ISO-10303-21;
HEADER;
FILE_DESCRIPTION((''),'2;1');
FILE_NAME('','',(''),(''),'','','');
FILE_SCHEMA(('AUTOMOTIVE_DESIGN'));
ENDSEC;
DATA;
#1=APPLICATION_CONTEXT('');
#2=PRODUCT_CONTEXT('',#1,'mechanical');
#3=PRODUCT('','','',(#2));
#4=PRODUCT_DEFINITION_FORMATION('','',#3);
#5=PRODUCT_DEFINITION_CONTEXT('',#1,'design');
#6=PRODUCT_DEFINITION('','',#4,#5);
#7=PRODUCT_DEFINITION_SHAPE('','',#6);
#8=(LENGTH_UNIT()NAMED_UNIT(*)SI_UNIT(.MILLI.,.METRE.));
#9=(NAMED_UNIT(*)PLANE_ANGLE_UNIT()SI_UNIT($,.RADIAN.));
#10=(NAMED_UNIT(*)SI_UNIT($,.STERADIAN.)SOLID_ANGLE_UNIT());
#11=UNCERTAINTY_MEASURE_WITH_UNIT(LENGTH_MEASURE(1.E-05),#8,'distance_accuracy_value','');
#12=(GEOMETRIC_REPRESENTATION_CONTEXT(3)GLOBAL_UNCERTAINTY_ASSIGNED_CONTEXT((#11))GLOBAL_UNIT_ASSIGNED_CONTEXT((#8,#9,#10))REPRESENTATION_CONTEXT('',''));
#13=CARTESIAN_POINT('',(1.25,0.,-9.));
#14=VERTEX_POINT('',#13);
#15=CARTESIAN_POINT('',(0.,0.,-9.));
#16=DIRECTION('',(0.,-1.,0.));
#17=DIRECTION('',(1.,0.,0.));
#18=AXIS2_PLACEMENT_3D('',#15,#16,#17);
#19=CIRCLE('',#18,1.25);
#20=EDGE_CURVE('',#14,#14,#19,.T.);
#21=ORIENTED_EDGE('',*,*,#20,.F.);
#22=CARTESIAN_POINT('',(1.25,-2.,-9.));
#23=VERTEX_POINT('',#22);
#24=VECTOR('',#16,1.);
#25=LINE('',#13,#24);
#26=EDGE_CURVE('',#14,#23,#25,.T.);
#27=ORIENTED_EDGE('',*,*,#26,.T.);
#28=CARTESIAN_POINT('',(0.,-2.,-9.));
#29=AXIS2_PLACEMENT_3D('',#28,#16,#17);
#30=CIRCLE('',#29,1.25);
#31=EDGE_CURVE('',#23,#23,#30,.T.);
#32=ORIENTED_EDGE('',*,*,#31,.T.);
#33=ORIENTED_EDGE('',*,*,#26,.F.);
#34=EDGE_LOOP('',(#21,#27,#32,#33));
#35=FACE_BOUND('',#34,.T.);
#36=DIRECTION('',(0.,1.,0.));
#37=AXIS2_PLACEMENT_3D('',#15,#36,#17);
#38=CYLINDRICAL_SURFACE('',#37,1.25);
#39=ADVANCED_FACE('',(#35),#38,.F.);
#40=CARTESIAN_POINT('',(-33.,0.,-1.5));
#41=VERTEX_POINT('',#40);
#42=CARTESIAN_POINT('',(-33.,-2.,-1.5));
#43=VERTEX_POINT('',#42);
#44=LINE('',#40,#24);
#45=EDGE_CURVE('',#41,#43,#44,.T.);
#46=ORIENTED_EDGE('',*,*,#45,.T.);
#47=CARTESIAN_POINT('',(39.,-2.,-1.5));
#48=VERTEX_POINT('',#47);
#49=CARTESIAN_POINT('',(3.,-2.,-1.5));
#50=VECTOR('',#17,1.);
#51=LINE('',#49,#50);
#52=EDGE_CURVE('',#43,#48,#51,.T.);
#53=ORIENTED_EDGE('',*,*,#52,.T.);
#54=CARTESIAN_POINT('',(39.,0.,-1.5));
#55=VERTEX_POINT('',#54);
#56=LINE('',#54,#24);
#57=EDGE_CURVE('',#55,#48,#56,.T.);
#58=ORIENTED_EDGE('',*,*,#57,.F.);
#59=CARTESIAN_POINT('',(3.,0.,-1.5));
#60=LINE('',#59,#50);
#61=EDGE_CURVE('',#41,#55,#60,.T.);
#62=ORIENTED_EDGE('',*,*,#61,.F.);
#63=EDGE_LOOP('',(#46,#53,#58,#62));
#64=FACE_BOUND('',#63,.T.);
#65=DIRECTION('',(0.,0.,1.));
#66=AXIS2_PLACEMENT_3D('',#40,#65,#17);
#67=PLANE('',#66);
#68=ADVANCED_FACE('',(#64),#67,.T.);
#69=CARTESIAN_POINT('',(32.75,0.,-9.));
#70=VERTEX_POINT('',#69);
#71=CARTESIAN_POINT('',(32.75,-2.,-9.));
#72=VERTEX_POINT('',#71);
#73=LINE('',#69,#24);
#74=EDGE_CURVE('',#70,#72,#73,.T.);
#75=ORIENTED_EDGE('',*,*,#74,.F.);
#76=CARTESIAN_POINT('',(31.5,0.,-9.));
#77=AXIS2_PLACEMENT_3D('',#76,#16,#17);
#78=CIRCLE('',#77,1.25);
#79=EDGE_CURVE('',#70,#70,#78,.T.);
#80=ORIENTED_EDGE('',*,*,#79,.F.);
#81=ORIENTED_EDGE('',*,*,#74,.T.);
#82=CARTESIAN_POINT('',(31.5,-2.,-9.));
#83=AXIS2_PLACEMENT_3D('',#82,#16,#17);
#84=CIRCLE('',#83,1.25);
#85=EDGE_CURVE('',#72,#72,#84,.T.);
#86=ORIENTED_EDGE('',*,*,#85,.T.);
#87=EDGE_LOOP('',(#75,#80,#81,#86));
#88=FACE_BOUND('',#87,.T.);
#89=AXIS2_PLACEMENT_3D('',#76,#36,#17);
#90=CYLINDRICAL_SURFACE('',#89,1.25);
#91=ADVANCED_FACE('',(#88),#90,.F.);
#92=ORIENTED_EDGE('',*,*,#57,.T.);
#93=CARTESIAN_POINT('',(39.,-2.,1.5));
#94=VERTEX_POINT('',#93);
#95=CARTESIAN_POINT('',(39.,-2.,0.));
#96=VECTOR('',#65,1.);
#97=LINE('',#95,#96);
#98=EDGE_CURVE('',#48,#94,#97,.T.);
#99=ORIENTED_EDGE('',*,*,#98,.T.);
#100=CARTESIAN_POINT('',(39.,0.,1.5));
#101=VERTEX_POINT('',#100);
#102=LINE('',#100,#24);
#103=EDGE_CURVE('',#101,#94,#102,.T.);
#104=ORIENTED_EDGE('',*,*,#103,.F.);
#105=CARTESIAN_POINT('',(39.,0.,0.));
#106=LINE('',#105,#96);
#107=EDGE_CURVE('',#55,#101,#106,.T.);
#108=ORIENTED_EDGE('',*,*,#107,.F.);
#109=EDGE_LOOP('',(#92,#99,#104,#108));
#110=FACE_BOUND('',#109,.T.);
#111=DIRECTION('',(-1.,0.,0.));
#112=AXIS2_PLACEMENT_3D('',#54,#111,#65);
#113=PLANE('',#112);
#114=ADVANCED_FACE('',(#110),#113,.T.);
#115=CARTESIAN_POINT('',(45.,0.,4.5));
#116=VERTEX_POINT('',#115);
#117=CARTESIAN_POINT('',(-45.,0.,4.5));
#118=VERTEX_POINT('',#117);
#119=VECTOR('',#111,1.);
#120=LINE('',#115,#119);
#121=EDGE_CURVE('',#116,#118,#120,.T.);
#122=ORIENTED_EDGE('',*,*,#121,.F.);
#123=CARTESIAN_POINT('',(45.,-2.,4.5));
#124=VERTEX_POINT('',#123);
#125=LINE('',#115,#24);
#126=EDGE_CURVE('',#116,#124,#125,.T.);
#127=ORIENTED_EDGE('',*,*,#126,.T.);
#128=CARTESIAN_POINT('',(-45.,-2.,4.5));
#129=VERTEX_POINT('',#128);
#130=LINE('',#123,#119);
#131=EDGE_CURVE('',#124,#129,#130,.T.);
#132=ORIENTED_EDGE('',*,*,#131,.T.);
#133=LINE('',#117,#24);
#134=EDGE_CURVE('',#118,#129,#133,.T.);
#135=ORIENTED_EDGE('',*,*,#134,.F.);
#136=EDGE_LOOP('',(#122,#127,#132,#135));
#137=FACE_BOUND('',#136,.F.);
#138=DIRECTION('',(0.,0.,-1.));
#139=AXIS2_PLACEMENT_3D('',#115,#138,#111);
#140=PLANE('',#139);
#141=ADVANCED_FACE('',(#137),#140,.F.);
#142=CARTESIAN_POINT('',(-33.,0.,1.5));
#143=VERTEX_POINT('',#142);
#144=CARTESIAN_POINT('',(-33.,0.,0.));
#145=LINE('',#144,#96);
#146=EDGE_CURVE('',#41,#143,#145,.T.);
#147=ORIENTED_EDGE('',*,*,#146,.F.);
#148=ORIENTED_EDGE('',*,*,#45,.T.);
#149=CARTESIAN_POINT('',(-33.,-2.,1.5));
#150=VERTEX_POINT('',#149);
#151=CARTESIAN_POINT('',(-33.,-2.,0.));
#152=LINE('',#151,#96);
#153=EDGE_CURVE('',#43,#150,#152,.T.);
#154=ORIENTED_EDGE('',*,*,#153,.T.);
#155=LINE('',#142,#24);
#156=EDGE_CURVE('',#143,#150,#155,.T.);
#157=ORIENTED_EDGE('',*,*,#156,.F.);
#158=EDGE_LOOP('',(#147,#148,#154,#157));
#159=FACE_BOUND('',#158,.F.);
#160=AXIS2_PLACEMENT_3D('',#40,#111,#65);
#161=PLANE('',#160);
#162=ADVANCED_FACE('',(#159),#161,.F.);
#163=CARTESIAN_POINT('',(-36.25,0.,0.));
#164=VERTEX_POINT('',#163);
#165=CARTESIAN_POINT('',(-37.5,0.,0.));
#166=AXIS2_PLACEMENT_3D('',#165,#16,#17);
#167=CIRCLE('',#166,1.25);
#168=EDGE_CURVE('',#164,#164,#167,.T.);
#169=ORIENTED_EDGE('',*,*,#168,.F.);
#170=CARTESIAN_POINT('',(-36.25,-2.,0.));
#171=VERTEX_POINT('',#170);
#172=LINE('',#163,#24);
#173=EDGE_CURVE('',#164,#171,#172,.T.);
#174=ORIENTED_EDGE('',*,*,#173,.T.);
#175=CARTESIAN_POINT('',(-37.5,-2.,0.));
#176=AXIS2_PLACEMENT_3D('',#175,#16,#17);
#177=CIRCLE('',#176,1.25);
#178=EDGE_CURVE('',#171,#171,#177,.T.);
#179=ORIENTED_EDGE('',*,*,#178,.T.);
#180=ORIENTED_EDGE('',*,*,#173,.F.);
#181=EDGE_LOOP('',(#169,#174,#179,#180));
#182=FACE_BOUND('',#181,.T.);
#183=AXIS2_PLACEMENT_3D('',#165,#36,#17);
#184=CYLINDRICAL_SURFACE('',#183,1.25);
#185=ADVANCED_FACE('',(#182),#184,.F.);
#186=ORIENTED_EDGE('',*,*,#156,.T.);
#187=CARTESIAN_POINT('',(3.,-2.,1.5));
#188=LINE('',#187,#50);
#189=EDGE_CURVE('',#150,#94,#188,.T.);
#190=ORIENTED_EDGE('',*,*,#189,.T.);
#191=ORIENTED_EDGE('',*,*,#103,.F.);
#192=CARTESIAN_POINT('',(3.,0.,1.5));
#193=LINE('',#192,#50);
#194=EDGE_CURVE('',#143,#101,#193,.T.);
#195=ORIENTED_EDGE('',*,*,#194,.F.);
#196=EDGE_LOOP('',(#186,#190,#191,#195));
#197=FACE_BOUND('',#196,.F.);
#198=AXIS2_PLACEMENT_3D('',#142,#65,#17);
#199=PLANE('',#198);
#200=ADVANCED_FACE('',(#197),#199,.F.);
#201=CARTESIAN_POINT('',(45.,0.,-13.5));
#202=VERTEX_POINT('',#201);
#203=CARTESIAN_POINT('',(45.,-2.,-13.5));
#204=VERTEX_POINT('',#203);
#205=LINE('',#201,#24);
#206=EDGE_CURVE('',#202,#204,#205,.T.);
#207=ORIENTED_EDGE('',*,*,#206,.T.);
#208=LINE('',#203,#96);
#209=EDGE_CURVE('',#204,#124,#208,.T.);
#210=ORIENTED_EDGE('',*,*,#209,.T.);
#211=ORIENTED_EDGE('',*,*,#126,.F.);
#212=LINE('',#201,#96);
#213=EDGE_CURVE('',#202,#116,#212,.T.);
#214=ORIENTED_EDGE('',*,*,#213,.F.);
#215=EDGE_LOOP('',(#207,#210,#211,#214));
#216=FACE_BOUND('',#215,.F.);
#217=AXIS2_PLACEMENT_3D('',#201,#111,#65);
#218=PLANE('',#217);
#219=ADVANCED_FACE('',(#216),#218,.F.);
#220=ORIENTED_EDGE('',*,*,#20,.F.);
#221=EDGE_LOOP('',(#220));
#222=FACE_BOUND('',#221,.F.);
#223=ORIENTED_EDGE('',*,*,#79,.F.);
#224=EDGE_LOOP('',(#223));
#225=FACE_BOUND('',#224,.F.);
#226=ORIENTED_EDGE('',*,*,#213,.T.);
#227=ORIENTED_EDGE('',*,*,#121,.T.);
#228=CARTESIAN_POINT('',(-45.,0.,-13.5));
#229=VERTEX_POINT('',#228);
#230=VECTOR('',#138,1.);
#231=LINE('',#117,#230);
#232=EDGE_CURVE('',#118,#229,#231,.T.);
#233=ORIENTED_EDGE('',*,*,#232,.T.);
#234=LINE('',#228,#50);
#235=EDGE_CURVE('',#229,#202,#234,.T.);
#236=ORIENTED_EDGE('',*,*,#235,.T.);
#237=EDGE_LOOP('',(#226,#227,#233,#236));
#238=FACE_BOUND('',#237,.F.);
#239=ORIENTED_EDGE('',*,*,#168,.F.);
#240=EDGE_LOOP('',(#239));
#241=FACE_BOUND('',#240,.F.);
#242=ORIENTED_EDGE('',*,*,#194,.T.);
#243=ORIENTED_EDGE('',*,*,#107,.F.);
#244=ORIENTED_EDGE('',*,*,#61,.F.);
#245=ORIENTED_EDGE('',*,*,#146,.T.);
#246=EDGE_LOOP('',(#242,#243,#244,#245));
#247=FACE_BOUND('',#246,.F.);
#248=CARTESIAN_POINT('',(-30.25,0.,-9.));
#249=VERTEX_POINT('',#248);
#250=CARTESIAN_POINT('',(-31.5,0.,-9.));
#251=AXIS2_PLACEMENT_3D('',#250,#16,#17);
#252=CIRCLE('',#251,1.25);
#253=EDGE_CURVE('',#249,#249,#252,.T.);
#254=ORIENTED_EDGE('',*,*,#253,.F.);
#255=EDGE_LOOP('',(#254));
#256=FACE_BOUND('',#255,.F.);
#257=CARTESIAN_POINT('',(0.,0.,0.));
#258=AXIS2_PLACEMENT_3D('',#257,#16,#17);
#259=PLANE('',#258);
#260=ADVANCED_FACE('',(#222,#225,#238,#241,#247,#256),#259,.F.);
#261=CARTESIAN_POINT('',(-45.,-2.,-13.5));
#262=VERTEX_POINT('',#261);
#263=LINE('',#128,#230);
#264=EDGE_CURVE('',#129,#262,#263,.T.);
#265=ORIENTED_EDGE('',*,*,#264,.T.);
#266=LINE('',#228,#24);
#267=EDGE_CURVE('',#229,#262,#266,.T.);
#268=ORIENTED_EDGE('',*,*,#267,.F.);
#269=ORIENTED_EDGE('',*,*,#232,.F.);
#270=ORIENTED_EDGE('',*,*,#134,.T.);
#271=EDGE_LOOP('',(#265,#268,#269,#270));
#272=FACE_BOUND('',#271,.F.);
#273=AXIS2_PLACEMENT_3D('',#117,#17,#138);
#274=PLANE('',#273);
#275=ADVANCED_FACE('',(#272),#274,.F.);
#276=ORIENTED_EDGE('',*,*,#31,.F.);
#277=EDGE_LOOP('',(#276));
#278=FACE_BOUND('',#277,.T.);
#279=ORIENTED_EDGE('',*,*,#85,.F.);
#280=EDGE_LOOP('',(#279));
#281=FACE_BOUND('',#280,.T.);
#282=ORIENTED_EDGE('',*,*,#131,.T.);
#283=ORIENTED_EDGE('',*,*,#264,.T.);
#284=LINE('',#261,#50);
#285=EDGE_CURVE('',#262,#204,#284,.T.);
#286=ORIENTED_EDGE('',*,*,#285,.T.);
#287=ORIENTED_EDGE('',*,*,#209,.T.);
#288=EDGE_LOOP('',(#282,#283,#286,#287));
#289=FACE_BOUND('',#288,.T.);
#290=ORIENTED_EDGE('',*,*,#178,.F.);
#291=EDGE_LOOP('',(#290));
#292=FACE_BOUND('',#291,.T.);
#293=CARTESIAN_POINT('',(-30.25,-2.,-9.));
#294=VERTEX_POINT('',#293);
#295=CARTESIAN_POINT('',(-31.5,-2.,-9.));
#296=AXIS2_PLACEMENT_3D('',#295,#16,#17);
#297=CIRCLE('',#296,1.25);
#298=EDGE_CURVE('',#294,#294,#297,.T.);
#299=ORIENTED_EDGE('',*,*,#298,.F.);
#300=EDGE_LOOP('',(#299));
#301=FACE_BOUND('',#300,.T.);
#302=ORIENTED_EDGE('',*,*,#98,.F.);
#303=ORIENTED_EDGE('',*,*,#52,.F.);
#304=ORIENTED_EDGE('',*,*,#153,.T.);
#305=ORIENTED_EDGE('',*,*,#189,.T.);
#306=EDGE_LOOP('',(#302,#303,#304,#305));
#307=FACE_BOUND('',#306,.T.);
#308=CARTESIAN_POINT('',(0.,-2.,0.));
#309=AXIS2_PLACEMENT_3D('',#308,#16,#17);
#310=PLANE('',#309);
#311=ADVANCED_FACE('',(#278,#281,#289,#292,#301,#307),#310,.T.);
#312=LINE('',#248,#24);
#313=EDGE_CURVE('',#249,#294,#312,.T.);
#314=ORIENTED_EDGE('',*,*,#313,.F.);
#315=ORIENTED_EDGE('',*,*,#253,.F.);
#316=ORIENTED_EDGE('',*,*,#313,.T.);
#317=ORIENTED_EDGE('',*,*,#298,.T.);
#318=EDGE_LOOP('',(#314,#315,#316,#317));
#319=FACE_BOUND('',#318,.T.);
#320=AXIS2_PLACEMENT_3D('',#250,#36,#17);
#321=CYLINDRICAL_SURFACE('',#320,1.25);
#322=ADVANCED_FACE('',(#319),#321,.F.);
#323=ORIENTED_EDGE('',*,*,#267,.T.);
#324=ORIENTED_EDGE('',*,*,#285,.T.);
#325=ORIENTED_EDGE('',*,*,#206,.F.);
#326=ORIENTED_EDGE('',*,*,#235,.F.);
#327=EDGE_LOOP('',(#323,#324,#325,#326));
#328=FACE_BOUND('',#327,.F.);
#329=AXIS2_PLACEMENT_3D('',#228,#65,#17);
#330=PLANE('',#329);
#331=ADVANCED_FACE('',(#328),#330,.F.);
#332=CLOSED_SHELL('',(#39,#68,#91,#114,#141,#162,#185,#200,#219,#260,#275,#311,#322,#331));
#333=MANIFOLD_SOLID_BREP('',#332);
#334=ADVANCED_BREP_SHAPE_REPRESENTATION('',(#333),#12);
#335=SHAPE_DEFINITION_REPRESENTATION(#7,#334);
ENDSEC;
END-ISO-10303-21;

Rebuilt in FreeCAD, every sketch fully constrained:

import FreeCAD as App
import Part
import Sketcher
Q = App.Units.Quantity


def add_polygon(sketch, points):
    """Adds a closed chain of lines whose ends are joined by coincident constraints."""
    first, n = sketch.GeometryCount, len(points)
    for a, b in zip(points, points[1:] + points[:1]):
        sketch.addGeometry(Part.LineSegment(App.Vector(*a, 0), App.Vector(*b, 0)), False)
    for i in range(n):
        sketch.addConstraint(Sketcher.Constraint("Coincident", first + i, 2, first + (i + 1) % n, 1))

doc = App.newDocument("Part")
params = doc.addObject("Spreadsheet::Sheet", "Params")
for row, (alias, value) in enumerate([
    ("sketch1_diameter", "2.5 mm"),
    ("sketch1_width", "90 mm"),
    ("sketch1_width2", "72 mm"),
    ("sketch1_height", "18 mm"),
    ("sketch1_height2", "3 mm"),
    ("pad1_length", "2 mm"),
], start=1):
    params.set(f"A{row}", alias)
    params.set(f"B{row}", "=" + value)
    params.setAlias(f"B{row}", alias)

body = doc.addObject("PartDesign::Body", "Body")

# Sketch on XZ plane
sketch1 = doc.addObject("Sketcher::SketchObject", "Sketch")
body.addObject(sketch1)
sketch1.AttachmentSupport = (doc.XZ_Plane, [""])
sketch1.MapMode = "FlatFace"
add_polygon(sketch1, [(45, -13.5), (45, 4.5), (-45, 4.5), (-45, -13.5)])  # lines 0-3
sketch1.addGeometry(Part.Circle(App.Vector(-31.5, -9, 0), App.Vector(0, 0, 1), 1.25), False)  # 4
sketch1.addGeometry(Part.Circle(App.Vector(0, -9, 0), App.Vector(0, 0, 1), 1.25), False)  # 5
sketch1.addGeometry(Part.Circle(App.Vector(31.5, -9, 0), App.Vector(0, 0, 1), 1.25), False)  # 6
sketch1.addGeometry(Part.Circle(App.Vector(-37.5, 0, 0), App.Vector(0, 0, 1), 1.25), False)  # 7
add_polygon(sketch1, [(39, -1.5), (-33, -1.5), (-33, 1.5), (39, 1.5)])  # lines 8-11
sketch1.addConstraint([
    Sketcher.Constraint("Vertical", 0),
    Sketcher.Constraint("Horizontal", 1),
    Sketcher.Constraint("Vertical", 2),
    Sketcher.Constraint("Horizontal", 3),
    Sketcher.Constraint("Horizontal", 8),
    Sketcher.Constraint("Vertical", 9),
    Sketcher.Constraint("Horizontal", 10),
    Sketcher.Constraint("Vertical", 11),
    Sketcher.Constraint("Equal", 4, 5),
    Sketcher.Constraint("Equal", 5, 6),
    Sketcher.Constraint("Equal", 6, 7),
    Sketcher.Constraint("Symmetric", 4, 3, 6, 3, -2),
    Sketcher.Constraint("PointOnObject", 5, 3, -2),
    Sketcher.Constraint("PointOnObject", 7, 3, -1),
    Sketcher.Constraint("Horizontal", 4, 3, 5, 3),
    Sketcher.Constraint("Diameter", 4, Q("2.5 mm")),
    Sketcher.Constraint("DistanceX", 1, 2, 1, 1, Q("90 mm")),
    Sketcher.Constraint("DistanceX", 8, 2, 8, 1, Q("72 mm")),
    Sketcher.Constraint("DistanceY", 0, 1, 0, 2, Q("18 mm")),
    Sketcher.Constraint("DistanceY", 9, 1, 9, 2, Q("3 mm")),
    Sketcher.Constraint("DistanceY", 4, 3, -1, 1, Q("9 mm")),
    Sketcher.Constraint("DistanceX", -1, 1, 0, 2, Q("45 mm")),
    Sketcher.Constraint("DistanceX", 8, 2, -1, 1, Q("33 mm")),
    Sketcher.Constraint("DistanceX", 4, 3, 6, 3, Q("63 mm")),
    Sketcher.Constraint("DistanceX", 7, 3, 4, 3, Q("6 mm")),
    Sketcher.Constraint("DistanceY", 8, 2, 1, 2, Q("6 mm")),
    Sketcher.Constraint("DistanceY", -1, 1, 0, 2, Q("4.5 mm")),
])
sketch1.setExpression("Constraints[23]", "Params.sketch1_diameter")
sketch1.setExpression("Constraints[24]", "Params.sketch1_width")
sketch1.setExpression("Constraints[25]", "Params.sketch1_width2")
sketch1.setExpression("Constraints[26]", "Params.sketch1_height")
sketch1.setExpression("Constraints[27]", "Params.sketch1_height2")
pad1 = doc.addObject("PartDesign::Pad", "Pad")
body.addObject(pad1)
pad1.Profile = sketch1
pad1.setExpression("Length", "Params.pad1_length")

doc.recompute()
